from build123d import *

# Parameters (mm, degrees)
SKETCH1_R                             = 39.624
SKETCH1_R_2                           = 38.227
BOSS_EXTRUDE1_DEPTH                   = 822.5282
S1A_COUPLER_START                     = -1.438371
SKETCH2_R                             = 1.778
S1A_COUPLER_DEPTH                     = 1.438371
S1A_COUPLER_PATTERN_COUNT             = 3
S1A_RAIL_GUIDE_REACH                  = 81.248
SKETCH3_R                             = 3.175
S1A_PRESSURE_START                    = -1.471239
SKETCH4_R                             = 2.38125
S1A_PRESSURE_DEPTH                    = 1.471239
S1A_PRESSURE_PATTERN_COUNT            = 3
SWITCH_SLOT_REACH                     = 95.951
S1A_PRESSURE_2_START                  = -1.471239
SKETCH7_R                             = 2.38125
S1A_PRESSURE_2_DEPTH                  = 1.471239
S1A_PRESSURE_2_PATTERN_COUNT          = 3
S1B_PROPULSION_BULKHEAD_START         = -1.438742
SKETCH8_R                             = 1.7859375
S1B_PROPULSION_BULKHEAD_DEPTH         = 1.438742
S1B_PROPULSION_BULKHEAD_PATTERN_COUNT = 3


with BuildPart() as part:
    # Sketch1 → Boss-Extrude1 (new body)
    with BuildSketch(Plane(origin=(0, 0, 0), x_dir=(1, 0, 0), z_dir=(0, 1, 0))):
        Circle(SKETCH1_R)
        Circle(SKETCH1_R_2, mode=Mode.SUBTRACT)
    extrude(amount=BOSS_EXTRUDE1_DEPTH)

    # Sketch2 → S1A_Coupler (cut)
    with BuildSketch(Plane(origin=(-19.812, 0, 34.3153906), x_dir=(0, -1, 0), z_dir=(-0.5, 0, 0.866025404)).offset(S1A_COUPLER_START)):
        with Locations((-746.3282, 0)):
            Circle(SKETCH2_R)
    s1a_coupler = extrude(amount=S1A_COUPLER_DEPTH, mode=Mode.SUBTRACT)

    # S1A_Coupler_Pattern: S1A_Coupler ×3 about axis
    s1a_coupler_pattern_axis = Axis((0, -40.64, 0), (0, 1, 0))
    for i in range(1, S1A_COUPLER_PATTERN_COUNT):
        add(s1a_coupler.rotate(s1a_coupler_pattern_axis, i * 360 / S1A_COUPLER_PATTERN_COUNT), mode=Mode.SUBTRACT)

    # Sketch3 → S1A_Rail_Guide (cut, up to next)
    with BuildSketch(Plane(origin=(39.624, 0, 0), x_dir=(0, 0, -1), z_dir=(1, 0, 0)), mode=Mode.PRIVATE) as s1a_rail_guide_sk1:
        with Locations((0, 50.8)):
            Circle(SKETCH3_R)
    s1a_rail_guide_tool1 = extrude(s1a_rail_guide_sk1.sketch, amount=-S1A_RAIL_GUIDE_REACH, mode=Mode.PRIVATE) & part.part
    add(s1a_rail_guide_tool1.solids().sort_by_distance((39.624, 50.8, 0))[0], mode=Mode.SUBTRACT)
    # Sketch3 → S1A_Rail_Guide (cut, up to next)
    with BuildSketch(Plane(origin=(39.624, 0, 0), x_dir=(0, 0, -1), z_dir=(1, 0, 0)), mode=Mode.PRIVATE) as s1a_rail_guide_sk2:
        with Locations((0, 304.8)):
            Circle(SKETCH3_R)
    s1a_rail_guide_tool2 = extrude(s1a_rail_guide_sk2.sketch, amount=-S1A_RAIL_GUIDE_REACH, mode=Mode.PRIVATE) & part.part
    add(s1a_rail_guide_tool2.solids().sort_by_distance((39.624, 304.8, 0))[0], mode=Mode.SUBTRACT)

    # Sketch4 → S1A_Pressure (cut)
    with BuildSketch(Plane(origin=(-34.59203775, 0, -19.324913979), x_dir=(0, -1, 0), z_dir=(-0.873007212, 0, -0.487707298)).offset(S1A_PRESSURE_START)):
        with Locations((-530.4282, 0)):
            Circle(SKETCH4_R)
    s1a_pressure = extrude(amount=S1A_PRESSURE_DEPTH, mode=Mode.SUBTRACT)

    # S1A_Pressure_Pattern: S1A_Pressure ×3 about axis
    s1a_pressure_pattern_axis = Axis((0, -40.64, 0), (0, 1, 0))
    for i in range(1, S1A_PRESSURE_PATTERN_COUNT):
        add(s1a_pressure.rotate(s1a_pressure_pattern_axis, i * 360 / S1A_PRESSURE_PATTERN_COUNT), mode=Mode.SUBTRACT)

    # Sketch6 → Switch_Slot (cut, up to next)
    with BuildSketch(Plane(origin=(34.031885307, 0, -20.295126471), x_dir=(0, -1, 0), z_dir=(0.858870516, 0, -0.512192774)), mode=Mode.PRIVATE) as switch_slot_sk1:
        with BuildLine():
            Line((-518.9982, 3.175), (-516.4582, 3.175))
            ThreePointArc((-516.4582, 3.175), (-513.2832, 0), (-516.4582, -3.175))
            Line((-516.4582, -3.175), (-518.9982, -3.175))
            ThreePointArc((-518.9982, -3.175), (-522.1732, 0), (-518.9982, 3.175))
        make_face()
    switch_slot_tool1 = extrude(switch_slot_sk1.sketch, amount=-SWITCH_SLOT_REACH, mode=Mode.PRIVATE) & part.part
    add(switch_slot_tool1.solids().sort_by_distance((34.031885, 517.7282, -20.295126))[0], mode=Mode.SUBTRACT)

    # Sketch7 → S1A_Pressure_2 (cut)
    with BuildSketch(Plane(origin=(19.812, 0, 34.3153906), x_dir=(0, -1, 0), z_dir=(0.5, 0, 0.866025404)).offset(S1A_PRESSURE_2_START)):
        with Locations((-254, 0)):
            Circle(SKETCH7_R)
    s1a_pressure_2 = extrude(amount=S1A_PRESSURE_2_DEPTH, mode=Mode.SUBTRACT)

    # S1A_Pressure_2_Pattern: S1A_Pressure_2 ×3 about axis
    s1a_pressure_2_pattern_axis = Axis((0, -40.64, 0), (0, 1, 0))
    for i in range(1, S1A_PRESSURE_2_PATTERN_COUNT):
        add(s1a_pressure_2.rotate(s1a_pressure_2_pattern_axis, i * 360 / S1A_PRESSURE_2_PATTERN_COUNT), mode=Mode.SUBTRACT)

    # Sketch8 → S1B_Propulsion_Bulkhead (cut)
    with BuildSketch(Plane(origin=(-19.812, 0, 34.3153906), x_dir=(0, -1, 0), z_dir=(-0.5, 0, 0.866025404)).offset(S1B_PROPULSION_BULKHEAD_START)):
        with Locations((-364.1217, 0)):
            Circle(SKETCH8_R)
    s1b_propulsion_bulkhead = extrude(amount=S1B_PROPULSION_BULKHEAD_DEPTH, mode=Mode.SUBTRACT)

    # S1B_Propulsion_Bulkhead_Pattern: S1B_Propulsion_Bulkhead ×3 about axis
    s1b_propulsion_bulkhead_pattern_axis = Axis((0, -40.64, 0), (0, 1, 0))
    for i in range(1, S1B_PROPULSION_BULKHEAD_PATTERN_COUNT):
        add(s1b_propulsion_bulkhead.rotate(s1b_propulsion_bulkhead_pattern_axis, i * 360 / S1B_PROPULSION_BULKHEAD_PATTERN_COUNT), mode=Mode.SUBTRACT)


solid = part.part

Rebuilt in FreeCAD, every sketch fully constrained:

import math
import FreeCAD as App
import Part
import Sketcher

V = App.Vector
Q = App.Units.Quantity

doc = App.newDocument("Part")
body = doc.addObject("PartDesign::Body", "Body")

# Sketch on XZ plane
sketch1 = body.newObject("Sketcher::SketchObject", "Sketch")
sketch1.AttachmentSupport = (doc.getObject("XZ_Plane"), [""])
sketch1.MapMode = "FlatFace"
sketch1.addGeometry(Part.Circle(V(0, 0, 0), V(0, 0, 1), 39.624), False)
sketch1.addGeometry(Part.Circle(V(0, 0, 0), V(0, 0, 1), 38.227), False)
sketch1.addConstraint(Sketcher.Constraint("Coincident", 0, 3, -1, 1))
sketch1.addConstraint(Sketcher.Constraint("Coincident", 1, 3, -1, 1))
sketch1.addConstraint(Sketcher.Constraint("Diameter", 0, Q("3.12 in")))
sketch1.addConstraint(Sketcher.Constraint("Diameter", 1, Q("3.01 in")))
pad1 = body.newObject("PartDesign::Pad", "Pad")
pad1.Profile = sketch1
pad1.Length = Q("32.383 in")
pad1.Reversed = True

# Sketch on an angled plane
sketch2 = body.newObject("Sketcher::SketchObject", "Sketch001")
sketch2.Placement = App.Placement(V(-19.092814, 0, 33.069725), App.Rotation(V(0, -1, 0), V(0.866025404, 0, 0.5), V(-0.5, 0, 0.866025404), "ZXY"))
sketch2.addGeometry(Part.Circle(V(-746.3282, 0, 0), V(0, 0, 1), 1.778), False)
sketch2.addConstraint(Sketcher.Constraint("PointOnObject", 0, 3, -1))
sketch2.addConstraint(Sketcher.Constraint("Diameter", 0, Q("0.14 in")))
sketch2.addConstraint(Sketcher.Constraint("DistanceX", 0, 3, -1, 1, Q("29.383 in")))
pocket1 = body.newObject("PartDesign::Pocket", "Pocket")
pocket1.Profile = sketch2
pocket1.Length = 1.438371
pocket1.Reversed = True
doc.recompute()

polarpattern = body.newObject("PartDesign::PolarPattern", "PolarPattern")
polarpattern.Originals = [pocket1]
polarpattern.Axis = (doc.getObject("Y_Axis"), [""])
polarpattern.Angle = 360
polarpattern.Occurrences = 3
body.Tip = polarpattern

# Sketch on YZ plane
sketch3 = body.newObject("Sketcher::SketchObject", "Sketch002")
sketch3.AttachmentSupport = (doc.getObject("YZ_Plane"), [""])
sketch3.MapMode = "FlatFace"
sketch3.AttachmentOffset = App.Placement(V(0, 0, 1.56 * 25.4), App.Rotation())
sketch3.addGeometry(Part.Circle(V(50.8, 0, 0), V(0, 0, 1), 3.175), False)
sketch3.addConstraint(Sketcher.Constraint("PointOnObject", 0, 3, -1))
sketch3.addConstraint(Sketcher.Constraint("Diameter", 0, Q("0.25 in")))
sketch3.addConstraint(Sketcher.Constraint("DistanceX", -1, 1, 0, 3, Q("2 in")))
pocket2 = body.newObject("PartDesign::Pocket", "Pocket001")
pocket2.Profile = sketch3
pocket2.Length = Q("0.0602 in")

# Sketch on YZ plane
sketch4 = body.newObject("Sketcher::SketchObject", "Sketch003")
sketch4.AttachmentSupport = (doc.getObject("YZ_Plane"), [""])
sketch4.MapMode = "FlatFace"
sketch4.AttachmentOffset = App.Placement(V(0, 0, 1.56 * 25.4), App.Rotation())
sketch4.addGeometry(Part.Circle(V(304.8, 0, 0), V(0, 0, 1), 3.175), False)
sketch4.addConstraint(Sketcher.Constraint("PointOnObject", 0, 3, -1))
sketch4.addConstraint(Sketcher.Constraint("Diameter", 0, Q("0.25 in")))
sketch4.addConstraint(Sketcher.Constraint("DistanceX", -1, 1, 0, 3, Q("12 in")))
pocket3 = body.newObject("PartDesign::Pocket", "Pocket002")
pocket3.Profile = sketch4
pocket3.Length = Q("0.0602 in")

# Sketch on an angled plane
sketch5 = body.newObject("Sketcher::SketchObject", "Sketch004")
sketch5.Placement = App.Placement(V(-33.307635, 0, -18.60738), App.Rotation(V(0, -1, 0), V(-0.487707298, 0, 0.873007212), V(-0.873007212, 0, -0.487707298), "ZXY"))
sketch5.addGeometry(Part.Circle(V(-530.4282, 0, 0), V(0, 0, 1), 2.38125), False)
sketch5.addConstraint(Sketcher.Constraint("PointOnObject", 0, 3, -1))
sketch5.addConstraint(Sketcher.Constraint("Diameter", 0, Q("0.1875 in")))
sketch5.addConstraint(Sketcher.Constraint("DistanceX", 0, 3, -1, 1, Q("20.883 in")))
pocket4 = body.newObject("PartDesign::Pocket", "Pocket003")
pocket4.Profile = sketch5
pocket4.Length = 1.471239
pocket4.Reversed = True
doc.recompute()

polarpattern2 = body.newObject("PartDesign::PolarPattern", "PolarPattern001")
polarpattern2.Originals = [pocket4]
polarpattern2.Axis = (doc.getObject("Y_Axis"), [""])
polarpattern2.Angle = 360
polarpattern2.Occurrences = 3
body.Tip = polarpattern2

# Sketch on an angled plane
sketch6 = body.newObject("Sketcher::SketchObject", "Sketch005")
sketch6.Placement = App.Placement(V(34.031885, 0, -20.295126), App.Rotation(V(0, -1, 0), V(-0.512192774, 0, -0.858870516), V(0.858870516, 0, -0.512192774), "ZXY"))
sketch6.addGeometry(Part.LineSegment(V(-516.4582, 3.175, 0), V(-518.9982, 3.175, 0)), False)
sketch6.addGeometry(Part.ArcOfCircle(Part.Circle(V(-518.9982, 0, 0), V(0, 0, 1), 3.175), math.radians(90), math.radians(270)), False)
sketch6.addGeometry(Part.LineSegment(V(-518.9982, -3.175, 0), V(-516.4582, -3.175, 0)), False)
sketch6.addGeometry(Part.ArcOfCircle(Part.Circle(V(-516.4582, 0, 0), V(0, 0, 1), 3.175), math.radians(-90), math.radians(90)), False)
sketch6.addConstraint(Sketcher.Constraint("Tangent", 0, 2, 1, 1))
sketch6.addConstraint(Sketcher.Constraint("Tangent", 1, 2, 2, 1))
sketch6.addConstraint(Sketcher.Constraint("Tangent", 2, 2, 3, 1))
sketch6.addConstraint(Sketcher.Constraint("Tangent", 3, 2, 0, 1))
sketch6.addConstraint(Sketcher.Constraint("Horizontal", 0))
sketch6.addConstraint(Sketcher.Constraint("Horizontal", 2))
sketch6.addConstraint(Sketcher.Constraint("PointOnObject", 1, 3, -1))
sketch6.addConstraint(Sketcher.Constraint("DistanceX", 0, 2, 0, 1, Q("0.1 in")))
sketch6.addConstraint(Sketcher.Constraint("Radius", 1, Q("0.125 in")))
sketch6.addConstraint(Sketcher.Constraint("DistanceX", 1, 3, -1, 1, Q("20.433 in")))
pocket5 = body.newObject("PartDesign::Pocket", "Pocket004")
pocket5.Profile = sketch6
pocket5.Length = Q("0.0602 in")

# Sketch on an angled plane
sketch7 = body.newObject("Sketcher::SketchObject", "Sketch006")
sketch7.Placement = App.Placement(V(19.07638, 0, 33.04126), App.Rotation(V(0, -1, 0), V(0.866025404, 0, -0.5), V(0.5, 0, 0.866025404), "ZXY"))
sketch7.addGeometry(Part.Circle(V(-254, 0, 0), V(0, 0, 1), 2.38125), False)
sketch7.addConstraint(Sketcher.Constraint("PointOnObject", 0, 3, -1))
sketch7.addConstraint(Sketcher.Constraint("Diameter", 0, Q("0.1875 in")))
sketch7.addConstraint(Sketcher.Constraint("DistanceX", 0, 3, -1, 1, Q("10 in")))
pocket6 = body.newObject("PartDesign::Pocket", "Pocket005")
pocket6.Profile = sketch7
pocket6.Length = 1.471239
pocket6.Reversed = True
doc.recompute()

polarpattern3 = body.newObject("PartDesign::PolarPattern", "PolarPattern002")
polarpattern3.Originals = [pocket6]
polarpattern3.Axis = (doc.getObject("Y_Axis"), [""])
polarpattern3.Angle = 360
polarpattern3.Occurrences = 3
body.Tip = polarpattern3

# Sketch on an angled plane
sketch8 = body.newObject("Sketcher::SketchObject", "Sketch007")
sketch8.Placement = App.Placement(V(-19.092629, 0, 33.069403), App.Rotation(V(0, -1, 0), V(0.866025404, 0, 0.5), V(-0.5, 0, 0.866025404), "ZXY"))
sketch8.addGeometry(Part.Circle(V(-364.1217, 0, 0), V(0, 0, 1), 1.785937), False)
sketch8.addConstraint(Sketcher.Constraint("PointOnObject", 0, 3, -1))
sketch8.addConstraint(Sketcher.Constraint("Diameter", 0, Q("0.140625 in")))
sketch8.addConstraint(Sketcher.Constraint("DistanceX", 0, 3, -1, 1, Q("14.3355 in")))
pocket7 = body.newObject("PartDesign::Pocket", "Pocket006")
pocket7.Profile = sketch8
pocket7.Length = 1.438742
pocket7.Reversed = True
doc.recompute()

polarpattern4 = body.newObject("PartDesign::PolarPattern", "PolarPattern003")
polarpattern4.Originals = [pocket7]
polarpattern4.Axis = (doc.getObject("Y_Axis"), [""])
polarpattern4.Angle = 360
polarpattern4.Occurrences = 3
body.Tip = polarpattern4

doc.recompute()
